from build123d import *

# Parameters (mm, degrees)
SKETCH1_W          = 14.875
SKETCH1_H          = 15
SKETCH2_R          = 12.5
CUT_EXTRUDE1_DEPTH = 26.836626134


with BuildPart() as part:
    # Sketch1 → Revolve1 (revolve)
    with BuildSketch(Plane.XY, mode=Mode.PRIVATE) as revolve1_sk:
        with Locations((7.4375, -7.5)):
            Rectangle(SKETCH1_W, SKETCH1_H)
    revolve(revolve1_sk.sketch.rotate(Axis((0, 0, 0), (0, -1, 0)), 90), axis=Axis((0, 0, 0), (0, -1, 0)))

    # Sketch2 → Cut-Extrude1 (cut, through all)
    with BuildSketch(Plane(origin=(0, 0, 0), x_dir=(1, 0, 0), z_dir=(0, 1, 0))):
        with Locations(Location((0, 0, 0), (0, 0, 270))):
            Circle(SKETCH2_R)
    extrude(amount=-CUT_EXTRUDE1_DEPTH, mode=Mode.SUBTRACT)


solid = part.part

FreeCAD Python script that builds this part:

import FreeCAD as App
import Part
import Sketcher

V = App.Vector

doc = App.newDocument("Part")
body = doc.addObject("PartDesign::Body", "Body")

sketch1 = doc.addObject("Sketcher::SketchObject", "Sketch")
body.addObject(sketch1)
sketch1.AttachmentSupport = (doc.XY_Plane, [""])
sketch1.MapMode = "FlatFace"
sketch1.addGeometry(Part.LineSegment(V(0, 0, 0), V(0, -15, 0)), False)
sketch1.addGeometry(Part.LineSegment(V(0, -15, 0), V(15, -15, 0)), False)
sketch1.addGeometry(Part.LineSegment(V(15, -15, 0), V(15, 0, 0)), False)
sketch1.addGeometry(Part.LineSegment(V(15, 0, 0), V(0, 0, 0)), False)
sketch1.addConstraint(Sketcher.Constraint("Coincident", 0, 2, 1, 1))
sketch1.addConstraint(Sketcher.Constraint("Coincident", 1, 2, 2, 1))
sketch1.addConstraint(Sketcher.Constraint("Coincident", 2, 2, 3, 1))
sketch1.addConstraint(Sketcher.Constraint("Coincident", 3, 2, 0, 1))
sketch1.addConstraint(Sketcher.Constraint("Vertical", 0))
sketch1.addConstraint(Sketcher.Constraint("Horizontal", 1))
sketch1.addConstraint(Sketcher.Constraint("Vertical", 2))
sketch1.addConstraint(Sketcher.Constraint("Horizontal", 3))
sketch1.addConstraint(Sketcher.Constraint("Coincident", 3, 2, -1, 1))
sketch1.addConstraint(Sketcher.Constraint("DistanceY", 0, 2, 0, 1, 15.0))
sketch1.addConstraint(Sketcher.Constraint("DistanceX", 1, 1, 1, 2, 14.875))
revolution = doc.addObject("PartDesign::Revolution", "Revolution")
body.addObject(revolution)
revolution.Profile = sketch1
revolution.ReferenceAxis = (sketch1, ["V_Axis"])
revolution.Angle = 360

sketch2 = doc.addObject("Sketcher::SketchObject", "Sketch001")
body.addObject(sketch2)
sketch2.AttachmentSupport = (doc.XZ_Plane, [""])
sketch2.MapMode = "FlatFace"
sketch2.addGeometry(Part.Circle(V(0, 0, 0), V(0, 0, 1), 12), False)
sketch2.addConstraint(Sketcher.Constraint("Coincident", 0, 3, -1, 1))
sketch2.addConstraint(Sketcher.Constraint("Diameter", 0, 25.0))
pocket1 = doc.addObject("PartDesign::Pocket", "Pocket")
body.addObject(pocket1)
pocket1.Profile = sketch2
pocket1.Type = "ThroughAll"
pocket1.Reversed = True

doc.recompute()
